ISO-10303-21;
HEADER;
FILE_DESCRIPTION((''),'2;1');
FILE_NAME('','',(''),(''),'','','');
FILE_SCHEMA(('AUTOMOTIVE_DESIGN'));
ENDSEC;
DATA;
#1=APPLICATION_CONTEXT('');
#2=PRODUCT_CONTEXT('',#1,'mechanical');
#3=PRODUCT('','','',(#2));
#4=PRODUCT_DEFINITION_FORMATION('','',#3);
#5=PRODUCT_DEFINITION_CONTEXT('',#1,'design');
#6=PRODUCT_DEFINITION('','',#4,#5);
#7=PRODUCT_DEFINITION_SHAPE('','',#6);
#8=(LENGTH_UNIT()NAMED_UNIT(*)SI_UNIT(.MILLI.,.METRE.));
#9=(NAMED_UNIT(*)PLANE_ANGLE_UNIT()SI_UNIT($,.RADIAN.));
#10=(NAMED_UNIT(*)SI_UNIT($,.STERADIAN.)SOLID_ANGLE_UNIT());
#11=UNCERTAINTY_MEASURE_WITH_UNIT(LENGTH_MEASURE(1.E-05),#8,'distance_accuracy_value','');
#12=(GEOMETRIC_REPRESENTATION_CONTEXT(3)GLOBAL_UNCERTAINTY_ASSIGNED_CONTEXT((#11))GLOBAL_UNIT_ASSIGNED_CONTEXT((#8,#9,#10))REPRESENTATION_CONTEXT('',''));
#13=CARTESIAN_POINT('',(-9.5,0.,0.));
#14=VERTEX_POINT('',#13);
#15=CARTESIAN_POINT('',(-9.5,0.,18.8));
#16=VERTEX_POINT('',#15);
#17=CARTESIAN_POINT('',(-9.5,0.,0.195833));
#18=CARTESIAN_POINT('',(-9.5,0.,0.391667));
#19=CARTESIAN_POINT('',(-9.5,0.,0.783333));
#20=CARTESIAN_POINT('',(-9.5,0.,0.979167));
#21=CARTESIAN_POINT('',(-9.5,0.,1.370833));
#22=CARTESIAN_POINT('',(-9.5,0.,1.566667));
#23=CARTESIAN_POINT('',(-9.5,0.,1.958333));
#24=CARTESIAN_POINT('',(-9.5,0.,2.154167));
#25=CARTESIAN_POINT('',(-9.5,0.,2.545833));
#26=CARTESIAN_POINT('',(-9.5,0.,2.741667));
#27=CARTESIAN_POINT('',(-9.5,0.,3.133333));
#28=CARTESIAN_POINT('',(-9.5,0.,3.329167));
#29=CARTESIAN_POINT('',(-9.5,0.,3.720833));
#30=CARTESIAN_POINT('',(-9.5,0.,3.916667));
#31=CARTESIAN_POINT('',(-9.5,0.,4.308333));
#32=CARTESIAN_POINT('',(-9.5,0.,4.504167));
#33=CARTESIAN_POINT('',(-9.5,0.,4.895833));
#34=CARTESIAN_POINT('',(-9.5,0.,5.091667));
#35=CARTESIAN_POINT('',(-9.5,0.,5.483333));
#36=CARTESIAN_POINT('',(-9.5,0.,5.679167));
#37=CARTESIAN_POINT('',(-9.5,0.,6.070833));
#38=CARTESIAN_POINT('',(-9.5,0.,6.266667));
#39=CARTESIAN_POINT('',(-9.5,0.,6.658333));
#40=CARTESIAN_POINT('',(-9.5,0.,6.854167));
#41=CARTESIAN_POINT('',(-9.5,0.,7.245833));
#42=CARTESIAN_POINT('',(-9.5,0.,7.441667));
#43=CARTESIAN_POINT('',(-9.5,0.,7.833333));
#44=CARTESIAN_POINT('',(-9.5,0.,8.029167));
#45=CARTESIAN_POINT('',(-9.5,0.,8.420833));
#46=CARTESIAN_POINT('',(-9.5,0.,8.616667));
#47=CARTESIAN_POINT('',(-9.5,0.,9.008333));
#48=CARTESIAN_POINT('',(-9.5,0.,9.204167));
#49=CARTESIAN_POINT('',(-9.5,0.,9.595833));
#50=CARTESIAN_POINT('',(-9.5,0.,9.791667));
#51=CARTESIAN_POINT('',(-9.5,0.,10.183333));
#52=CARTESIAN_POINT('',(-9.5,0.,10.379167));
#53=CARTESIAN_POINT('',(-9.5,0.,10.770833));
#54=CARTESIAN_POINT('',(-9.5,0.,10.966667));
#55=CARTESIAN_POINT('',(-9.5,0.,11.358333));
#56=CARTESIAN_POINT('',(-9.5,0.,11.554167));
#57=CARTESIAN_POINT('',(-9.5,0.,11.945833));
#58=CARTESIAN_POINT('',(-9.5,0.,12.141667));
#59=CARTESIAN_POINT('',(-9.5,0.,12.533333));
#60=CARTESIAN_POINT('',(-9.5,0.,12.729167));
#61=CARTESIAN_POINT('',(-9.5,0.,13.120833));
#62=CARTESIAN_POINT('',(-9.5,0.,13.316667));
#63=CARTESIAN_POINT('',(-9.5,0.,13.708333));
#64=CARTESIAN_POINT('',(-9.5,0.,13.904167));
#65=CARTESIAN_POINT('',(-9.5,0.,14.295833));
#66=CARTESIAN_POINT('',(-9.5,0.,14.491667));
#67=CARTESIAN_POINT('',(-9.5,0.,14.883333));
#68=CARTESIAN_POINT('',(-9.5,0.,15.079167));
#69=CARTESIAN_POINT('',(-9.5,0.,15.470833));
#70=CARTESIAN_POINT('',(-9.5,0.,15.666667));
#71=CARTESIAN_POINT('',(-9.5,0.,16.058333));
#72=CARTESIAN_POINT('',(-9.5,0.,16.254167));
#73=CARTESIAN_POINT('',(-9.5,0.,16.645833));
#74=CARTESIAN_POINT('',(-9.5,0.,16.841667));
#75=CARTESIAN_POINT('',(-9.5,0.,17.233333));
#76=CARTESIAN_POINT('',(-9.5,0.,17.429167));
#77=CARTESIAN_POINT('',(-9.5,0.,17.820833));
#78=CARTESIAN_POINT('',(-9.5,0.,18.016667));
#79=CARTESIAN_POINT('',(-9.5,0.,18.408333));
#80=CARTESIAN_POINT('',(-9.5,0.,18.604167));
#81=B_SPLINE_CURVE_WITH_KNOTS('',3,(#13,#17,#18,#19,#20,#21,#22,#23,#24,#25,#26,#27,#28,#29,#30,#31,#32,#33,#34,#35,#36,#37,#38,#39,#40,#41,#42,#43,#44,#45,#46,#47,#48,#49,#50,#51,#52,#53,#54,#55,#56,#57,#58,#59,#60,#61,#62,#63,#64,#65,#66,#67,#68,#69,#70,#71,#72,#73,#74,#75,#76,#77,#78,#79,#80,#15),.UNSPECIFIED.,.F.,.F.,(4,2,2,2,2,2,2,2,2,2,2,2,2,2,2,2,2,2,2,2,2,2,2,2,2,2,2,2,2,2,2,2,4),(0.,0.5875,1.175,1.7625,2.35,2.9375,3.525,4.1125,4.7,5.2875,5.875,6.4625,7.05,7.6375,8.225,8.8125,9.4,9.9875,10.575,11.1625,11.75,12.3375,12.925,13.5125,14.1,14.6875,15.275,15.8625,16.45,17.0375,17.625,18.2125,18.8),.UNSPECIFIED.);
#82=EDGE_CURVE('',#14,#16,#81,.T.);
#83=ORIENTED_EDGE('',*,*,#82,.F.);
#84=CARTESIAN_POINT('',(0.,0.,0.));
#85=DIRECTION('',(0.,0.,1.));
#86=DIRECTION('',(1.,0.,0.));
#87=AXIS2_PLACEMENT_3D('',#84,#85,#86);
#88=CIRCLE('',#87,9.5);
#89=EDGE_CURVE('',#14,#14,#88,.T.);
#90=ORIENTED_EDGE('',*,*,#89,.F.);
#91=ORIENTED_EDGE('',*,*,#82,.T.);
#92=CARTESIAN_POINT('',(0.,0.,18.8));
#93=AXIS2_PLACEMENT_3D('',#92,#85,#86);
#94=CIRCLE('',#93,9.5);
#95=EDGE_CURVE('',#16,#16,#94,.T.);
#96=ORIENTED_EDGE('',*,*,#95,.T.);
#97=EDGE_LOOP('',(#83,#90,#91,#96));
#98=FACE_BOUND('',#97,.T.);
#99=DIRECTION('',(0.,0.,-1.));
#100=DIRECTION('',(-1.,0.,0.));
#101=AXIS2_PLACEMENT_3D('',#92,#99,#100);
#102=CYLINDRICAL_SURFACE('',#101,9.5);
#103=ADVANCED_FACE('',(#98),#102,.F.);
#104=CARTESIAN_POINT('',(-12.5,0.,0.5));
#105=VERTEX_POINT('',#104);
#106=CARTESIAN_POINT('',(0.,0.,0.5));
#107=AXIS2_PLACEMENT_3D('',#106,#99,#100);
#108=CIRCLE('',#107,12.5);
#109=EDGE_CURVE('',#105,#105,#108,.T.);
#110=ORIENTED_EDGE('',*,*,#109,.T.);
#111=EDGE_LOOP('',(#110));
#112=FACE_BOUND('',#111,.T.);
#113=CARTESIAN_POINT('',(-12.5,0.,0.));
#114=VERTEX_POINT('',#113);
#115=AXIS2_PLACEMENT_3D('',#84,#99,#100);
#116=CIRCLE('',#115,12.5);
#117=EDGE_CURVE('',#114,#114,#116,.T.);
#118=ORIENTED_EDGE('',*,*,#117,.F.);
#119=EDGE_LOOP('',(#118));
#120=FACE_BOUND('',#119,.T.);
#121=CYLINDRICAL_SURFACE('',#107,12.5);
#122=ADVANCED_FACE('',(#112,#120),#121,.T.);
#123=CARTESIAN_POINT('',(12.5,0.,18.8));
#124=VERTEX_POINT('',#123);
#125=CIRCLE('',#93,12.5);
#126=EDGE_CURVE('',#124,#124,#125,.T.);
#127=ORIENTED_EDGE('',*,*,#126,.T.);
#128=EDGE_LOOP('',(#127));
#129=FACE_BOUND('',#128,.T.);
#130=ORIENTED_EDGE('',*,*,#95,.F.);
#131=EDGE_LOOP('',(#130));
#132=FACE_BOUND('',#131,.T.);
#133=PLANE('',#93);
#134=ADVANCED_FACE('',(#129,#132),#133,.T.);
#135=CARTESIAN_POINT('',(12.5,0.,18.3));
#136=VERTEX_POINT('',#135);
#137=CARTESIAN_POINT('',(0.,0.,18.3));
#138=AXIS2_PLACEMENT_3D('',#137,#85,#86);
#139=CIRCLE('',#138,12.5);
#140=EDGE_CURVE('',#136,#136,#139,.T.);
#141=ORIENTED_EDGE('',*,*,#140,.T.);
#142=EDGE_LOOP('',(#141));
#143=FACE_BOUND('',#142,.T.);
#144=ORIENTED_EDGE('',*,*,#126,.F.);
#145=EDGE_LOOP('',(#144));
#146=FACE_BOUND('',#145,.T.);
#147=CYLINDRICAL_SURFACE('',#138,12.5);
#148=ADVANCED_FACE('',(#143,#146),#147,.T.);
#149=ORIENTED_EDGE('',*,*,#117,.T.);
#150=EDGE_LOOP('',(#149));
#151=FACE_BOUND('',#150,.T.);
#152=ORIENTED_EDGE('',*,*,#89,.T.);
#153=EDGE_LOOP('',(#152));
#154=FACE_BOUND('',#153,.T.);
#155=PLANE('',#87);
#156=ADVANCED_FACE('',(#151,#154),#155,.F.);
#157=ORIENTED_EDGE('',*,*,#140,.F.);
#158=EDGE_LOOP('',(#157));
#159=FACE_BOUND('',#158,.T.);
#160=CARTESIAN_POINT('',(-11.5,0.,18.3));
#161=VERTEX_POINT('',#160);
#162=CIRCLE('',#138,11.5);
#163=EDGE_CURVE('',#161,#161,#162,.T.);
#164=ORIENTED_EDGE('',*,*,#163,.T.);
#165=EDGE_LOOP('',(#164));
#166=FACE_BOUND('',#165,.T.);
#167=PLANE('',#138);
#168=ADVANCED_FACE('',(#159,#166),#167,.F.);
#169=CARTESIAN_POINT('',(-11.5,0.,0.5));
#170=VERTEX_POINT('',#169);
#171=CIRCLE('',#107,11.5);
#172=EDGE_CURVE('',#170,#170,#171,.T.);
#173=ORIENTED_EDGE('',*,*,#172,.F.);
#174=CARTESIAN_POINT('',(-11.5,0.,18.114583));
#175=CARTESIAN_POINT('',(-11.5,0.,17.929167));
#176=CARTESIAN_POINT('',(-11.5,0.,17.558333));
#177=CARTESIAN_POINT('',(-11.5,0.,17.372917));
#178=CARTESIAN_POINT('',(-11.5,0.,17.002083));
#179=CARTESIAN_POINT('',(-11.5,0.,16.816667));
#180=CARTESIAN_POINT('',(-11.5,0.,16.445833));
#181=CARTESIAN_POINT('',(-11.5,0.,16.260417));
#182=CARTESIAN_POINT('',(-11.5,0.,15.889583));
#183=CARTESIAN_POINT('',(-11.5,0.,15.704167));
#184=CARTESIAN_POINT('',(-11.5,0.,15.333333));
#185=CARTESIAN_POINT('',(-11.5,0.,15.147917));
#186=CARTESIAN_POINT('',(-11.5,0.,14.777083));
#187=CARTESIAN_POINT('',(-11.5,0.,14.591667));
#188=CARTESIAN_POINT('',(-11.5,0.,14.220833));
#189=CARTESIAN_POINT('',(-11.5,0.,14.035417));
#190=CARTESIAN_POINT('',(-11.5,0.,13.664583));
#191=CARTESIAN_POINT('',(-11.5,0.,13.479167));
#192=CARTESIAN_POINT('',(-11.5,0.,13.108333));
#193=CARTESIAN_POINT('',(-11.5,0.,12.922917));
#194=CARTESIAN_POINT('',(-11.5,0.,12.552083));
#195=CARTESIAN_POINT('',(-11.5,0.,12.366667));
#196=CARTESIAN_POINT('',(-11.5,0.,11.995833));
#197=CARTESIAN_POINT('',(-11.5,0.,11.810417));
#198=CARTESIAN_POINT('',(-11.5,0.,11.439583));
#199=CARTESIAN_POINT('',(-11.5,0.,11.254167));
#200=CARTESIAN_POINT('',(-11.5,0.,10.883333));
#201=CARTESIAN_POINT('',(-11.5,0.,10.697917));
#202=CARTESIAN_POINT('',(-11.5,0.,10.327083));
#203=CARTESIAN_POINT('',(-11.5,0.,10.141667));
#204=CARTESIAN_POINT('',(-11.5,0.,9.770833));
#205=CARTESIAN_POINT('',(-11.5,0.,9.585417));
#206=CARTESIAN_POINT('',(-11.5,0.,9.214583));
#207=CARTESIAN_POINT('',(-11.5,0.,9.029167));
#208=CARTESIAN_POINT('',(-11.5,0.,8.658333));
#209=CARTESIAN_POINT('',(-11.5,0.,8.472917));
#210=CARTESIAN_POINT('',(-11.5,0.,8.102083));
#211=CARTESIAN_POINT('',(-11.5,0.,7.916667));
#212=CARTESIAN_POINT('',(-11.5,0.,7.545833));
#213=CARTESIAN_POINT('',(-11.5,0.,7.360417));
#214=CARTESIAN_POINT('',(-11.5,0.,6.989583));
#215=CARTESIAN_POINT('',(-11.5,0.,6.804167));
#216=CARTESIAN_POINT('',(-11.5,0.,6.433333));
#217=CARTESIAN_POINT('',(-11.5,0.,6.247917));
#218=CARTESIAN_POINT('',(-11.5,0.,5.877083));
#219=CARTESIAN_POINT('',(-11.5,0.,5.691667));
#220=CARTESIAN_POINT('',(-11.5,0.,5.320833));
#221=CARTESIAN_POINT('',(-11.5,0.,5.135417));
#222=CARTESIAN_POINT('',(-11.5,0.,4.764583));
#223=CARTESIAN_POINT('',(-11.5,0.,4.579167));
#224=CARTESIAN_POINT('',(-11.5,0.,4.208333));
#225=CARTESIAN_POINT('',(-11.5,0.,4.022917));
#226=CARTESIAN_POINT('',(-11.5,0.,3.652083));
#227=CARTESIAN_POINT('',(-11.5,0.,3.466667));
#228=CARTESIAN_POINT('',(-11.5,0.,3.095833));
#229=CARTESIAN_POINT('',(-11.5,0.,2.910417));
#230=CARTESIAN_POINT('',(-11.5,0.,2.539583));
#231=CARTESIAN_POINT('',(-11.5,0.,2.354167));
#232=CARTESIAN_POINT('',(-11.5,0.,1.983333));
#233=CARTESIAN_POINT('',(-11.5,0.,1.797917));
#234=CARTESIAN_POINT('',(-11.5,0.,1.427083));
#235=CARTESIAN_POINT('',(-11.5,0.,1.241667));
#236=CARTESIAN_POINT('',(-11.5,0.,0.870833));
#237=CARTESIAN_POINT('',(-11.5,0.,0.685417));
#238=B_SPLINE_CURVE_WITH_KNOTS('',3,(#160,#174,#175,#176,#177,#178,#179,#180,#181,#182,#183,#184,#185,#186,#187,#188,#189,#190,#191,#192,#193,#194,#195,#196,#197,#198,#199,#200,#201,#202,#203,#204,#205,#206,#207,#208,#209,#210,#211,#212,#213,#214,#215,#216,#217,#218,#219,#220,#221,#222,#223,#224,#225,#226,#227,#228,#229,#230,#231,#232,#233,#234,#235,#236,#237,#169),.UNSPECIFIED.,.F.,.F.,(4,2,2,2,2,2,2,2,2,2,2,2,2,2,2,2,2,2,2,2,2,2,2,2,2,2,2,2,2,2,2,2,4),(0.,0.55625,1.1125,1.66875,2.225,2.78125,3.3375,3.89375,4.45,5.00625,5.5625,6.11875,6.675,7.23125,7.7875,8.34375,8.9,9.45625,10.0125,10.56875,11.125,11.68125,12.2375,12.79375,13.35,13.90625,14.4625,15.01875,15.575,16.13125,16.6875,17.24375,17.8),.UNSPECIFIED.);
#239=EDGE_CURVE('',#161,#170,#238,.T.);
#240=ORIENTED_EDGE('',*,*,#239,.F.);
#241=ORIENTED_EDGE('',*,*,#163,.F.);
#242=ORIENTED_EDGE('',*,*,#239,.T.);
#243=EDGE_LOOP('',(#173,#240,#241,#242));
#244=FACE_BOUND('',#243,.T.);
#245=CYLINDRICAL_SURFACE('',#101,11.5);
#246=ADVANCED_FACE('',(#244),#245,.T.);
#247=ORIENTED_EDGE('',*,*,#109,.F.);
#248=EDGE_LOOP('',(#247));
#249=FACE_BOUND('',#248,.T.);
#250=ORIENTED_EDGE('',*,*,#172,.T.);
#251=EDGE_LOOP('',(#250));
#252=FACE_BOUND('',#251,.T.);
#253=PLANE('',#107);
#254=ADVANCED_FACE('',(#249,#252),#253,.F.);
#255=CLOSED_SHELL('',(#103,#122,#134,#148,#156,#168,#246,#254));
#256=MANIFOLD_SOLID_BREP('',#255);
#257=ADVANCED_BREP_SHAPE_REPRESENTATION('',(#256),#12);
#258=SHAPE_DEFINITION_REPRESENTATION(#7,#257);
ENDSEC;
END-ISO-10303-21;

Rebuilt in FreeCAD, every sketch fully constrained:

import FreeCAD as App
import Part
import Sketcher
from FreeCAD import Vector

doc = App.newDocument("Part")
body = doc.addObject("PartDesign::Body", "Body")

# Sketch on XY plane
sketch1 = doc.addObject("Sketcher::SketchObject", "Sketch")
body.addObject(sketch1)
sketch1.AttachmentSupport = (doc.XY_Plane, [""])
sketch1.MapMode = "FlatFace"
sketch1.addGeometry(Part.Circle(Vector(0, 0, 0), Vector(0, 0, 1), 12), False)
sketch1.addGeometry(Part.Circle(Vector(0, 0, 0), Vector(0, 0, 1), 10), False)
sketch1.addConstraint(Sketcher.Constraint("Coincident", 0, 3, -1, 1))
sketch1.addConstraint(Sketcher.Constraint("Coincident", 1, 3, -1, 1))
sketch1.addConstraint(Sketcher.Constraint("Diameter", 0, 23.0))
sketch1.addConstraint(Sketcher.Constraint("Diameter", 1, 19.0))
pad1 = doc.addObject("PartDesign::Pad", "Pad")
body.addObject(pad1)
pad1.Profile = sketch1
pad1.Length = 18.8

# Sketch on XY plane
sketch2 = doc.addObject("Sketcher::SketchObject", "Sketch001")
body.addObject(sketch2)
sketch2.AttachmentSupport = (doc.XY_Plane, [""])
sketch2.MapMode = "FlatFace"
sketch2.AttachmentOffset = App.Placement(Vector(0, 0, 18.3), App.Rotation())
sketch2.addGeometry(Part.Circle(Vector(0, 0, 0), Vector(0, 0, 1), 12), False)
sketch2.addGeometry(Part.Circle(Vector(0, 0, 0), Vector(0, 0, 1), 12), False)
sketch2.addConstraint(Sketcher.Constraint("Coincident", 0, 3, -1, 1))
sketch2.addConstraint(Sketcher.Constraint("Coincident", 1, 3, -1, 1))
sketch2.addConstraint(Sketcher.Constraint("Diameter", 0, 25.0))
sketch2.addConstraint(Sketcher.Constraint("Diameter", 1, 23.0))
pad2 = doc.addObject("PartDesign::Pad", "Pad001")
body.addObject(pad2)
pad2.Profile = sketch2
pad2.Length = 0.5

# Sketch on XY plane
sketch3 = doc.addObject("Sketcher::SketchObject", "Sketch002")
body.addObject(sketch3)
sketch3.AttachmentSupport = (doc.XY_Plane, [""])
sketch3.MapMode = "FlatFace"
sketch3.addGeometry(Part.Circle(Vector(0, 0, 0), Vector(0, 0, 1), 12), False)
sketch3.addGeometry(Part.Circle(Vector(0, 0, 0), Vector(0, 0, 1), 12), False)
sketch3.addConstraint(Sketcher.Constraint("Coincident", 0, 3, -1, 1))
sketch3.addConstraint(Sketcher.Constraint("Coincident", 1, 3, -1, 1))
sketch3.addConstraint(Sketcher.Constraint("Diameter", 0, 25.0))
sketch3.addConstraint(Sketcher.Constraint("Diameter", 1, 23.0))
pad3 = doc.addObject("PartDesign::Pad", "Pad002")
body.addObject(pad3)
pad3.Profile = sketch3
pad3.Length = 0.5

doc.recompute()
